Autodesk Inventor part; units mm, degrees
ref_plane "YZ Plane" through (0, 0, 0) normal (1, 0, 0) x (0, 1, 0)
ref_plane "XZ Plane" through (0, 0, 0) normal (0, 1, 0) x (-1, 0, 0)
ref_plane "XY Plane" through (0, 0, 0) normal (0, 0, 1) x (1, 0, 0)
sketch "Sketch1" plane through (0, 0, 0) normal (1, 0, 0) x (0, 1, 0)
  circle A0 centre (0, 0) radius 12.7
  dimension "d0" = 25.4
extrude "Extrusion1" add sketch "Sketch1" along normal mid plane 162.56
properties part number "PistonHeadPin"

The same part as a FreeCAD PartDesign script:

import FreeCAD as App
import Part
import Sketcher

V = App.Vector
Q = App.Units.Quantity

doc = App.newDocument("Part")
params = doc.addObject("Spreadsheet::Sheet", "Params")
for row, (alias, value) in enumerate([
    ("sketch1_diameter", "1 in"),
    ("pad1_length", "6.4 in"),
], start=1):
    params.set(f"A{row}", alias)
    params.set(f"B{row}", "=" + value)
    params.setAlias(f"B{row}", alias)

body = doc.addObject("PartDesign::Body", "Body")

# Sketch on YZ plane
sketch1 = body.newObject("Sketcher::SketchObject", "Sketch")
sketch1.AttachmentSupport = (doc.getObject("YZ_Plane"), [""])
sketch1.MapMode = "FlatFace"
sketch1.addGeometry(Part.Circle(V(0, 0, 0), V(0, 0, 1), 13), False)
sketch1.addConstraint([
    Sketcher.Constraint("Coincident", 0, 3, -1, 1),
    Sketcher.Constraint("Diameter", 0, Q("1 in")),
])
sketch1.setExpression("Constraints[1]", "Params.sketch1_diameter")
pad1 = body.newObject("PartDesign::Pad", "Pad")
pad1.Profile = sketch1
pad1.setExpression("Length", "Params.pad1_length")
pad1.Midplane = True

doc.recompute()
